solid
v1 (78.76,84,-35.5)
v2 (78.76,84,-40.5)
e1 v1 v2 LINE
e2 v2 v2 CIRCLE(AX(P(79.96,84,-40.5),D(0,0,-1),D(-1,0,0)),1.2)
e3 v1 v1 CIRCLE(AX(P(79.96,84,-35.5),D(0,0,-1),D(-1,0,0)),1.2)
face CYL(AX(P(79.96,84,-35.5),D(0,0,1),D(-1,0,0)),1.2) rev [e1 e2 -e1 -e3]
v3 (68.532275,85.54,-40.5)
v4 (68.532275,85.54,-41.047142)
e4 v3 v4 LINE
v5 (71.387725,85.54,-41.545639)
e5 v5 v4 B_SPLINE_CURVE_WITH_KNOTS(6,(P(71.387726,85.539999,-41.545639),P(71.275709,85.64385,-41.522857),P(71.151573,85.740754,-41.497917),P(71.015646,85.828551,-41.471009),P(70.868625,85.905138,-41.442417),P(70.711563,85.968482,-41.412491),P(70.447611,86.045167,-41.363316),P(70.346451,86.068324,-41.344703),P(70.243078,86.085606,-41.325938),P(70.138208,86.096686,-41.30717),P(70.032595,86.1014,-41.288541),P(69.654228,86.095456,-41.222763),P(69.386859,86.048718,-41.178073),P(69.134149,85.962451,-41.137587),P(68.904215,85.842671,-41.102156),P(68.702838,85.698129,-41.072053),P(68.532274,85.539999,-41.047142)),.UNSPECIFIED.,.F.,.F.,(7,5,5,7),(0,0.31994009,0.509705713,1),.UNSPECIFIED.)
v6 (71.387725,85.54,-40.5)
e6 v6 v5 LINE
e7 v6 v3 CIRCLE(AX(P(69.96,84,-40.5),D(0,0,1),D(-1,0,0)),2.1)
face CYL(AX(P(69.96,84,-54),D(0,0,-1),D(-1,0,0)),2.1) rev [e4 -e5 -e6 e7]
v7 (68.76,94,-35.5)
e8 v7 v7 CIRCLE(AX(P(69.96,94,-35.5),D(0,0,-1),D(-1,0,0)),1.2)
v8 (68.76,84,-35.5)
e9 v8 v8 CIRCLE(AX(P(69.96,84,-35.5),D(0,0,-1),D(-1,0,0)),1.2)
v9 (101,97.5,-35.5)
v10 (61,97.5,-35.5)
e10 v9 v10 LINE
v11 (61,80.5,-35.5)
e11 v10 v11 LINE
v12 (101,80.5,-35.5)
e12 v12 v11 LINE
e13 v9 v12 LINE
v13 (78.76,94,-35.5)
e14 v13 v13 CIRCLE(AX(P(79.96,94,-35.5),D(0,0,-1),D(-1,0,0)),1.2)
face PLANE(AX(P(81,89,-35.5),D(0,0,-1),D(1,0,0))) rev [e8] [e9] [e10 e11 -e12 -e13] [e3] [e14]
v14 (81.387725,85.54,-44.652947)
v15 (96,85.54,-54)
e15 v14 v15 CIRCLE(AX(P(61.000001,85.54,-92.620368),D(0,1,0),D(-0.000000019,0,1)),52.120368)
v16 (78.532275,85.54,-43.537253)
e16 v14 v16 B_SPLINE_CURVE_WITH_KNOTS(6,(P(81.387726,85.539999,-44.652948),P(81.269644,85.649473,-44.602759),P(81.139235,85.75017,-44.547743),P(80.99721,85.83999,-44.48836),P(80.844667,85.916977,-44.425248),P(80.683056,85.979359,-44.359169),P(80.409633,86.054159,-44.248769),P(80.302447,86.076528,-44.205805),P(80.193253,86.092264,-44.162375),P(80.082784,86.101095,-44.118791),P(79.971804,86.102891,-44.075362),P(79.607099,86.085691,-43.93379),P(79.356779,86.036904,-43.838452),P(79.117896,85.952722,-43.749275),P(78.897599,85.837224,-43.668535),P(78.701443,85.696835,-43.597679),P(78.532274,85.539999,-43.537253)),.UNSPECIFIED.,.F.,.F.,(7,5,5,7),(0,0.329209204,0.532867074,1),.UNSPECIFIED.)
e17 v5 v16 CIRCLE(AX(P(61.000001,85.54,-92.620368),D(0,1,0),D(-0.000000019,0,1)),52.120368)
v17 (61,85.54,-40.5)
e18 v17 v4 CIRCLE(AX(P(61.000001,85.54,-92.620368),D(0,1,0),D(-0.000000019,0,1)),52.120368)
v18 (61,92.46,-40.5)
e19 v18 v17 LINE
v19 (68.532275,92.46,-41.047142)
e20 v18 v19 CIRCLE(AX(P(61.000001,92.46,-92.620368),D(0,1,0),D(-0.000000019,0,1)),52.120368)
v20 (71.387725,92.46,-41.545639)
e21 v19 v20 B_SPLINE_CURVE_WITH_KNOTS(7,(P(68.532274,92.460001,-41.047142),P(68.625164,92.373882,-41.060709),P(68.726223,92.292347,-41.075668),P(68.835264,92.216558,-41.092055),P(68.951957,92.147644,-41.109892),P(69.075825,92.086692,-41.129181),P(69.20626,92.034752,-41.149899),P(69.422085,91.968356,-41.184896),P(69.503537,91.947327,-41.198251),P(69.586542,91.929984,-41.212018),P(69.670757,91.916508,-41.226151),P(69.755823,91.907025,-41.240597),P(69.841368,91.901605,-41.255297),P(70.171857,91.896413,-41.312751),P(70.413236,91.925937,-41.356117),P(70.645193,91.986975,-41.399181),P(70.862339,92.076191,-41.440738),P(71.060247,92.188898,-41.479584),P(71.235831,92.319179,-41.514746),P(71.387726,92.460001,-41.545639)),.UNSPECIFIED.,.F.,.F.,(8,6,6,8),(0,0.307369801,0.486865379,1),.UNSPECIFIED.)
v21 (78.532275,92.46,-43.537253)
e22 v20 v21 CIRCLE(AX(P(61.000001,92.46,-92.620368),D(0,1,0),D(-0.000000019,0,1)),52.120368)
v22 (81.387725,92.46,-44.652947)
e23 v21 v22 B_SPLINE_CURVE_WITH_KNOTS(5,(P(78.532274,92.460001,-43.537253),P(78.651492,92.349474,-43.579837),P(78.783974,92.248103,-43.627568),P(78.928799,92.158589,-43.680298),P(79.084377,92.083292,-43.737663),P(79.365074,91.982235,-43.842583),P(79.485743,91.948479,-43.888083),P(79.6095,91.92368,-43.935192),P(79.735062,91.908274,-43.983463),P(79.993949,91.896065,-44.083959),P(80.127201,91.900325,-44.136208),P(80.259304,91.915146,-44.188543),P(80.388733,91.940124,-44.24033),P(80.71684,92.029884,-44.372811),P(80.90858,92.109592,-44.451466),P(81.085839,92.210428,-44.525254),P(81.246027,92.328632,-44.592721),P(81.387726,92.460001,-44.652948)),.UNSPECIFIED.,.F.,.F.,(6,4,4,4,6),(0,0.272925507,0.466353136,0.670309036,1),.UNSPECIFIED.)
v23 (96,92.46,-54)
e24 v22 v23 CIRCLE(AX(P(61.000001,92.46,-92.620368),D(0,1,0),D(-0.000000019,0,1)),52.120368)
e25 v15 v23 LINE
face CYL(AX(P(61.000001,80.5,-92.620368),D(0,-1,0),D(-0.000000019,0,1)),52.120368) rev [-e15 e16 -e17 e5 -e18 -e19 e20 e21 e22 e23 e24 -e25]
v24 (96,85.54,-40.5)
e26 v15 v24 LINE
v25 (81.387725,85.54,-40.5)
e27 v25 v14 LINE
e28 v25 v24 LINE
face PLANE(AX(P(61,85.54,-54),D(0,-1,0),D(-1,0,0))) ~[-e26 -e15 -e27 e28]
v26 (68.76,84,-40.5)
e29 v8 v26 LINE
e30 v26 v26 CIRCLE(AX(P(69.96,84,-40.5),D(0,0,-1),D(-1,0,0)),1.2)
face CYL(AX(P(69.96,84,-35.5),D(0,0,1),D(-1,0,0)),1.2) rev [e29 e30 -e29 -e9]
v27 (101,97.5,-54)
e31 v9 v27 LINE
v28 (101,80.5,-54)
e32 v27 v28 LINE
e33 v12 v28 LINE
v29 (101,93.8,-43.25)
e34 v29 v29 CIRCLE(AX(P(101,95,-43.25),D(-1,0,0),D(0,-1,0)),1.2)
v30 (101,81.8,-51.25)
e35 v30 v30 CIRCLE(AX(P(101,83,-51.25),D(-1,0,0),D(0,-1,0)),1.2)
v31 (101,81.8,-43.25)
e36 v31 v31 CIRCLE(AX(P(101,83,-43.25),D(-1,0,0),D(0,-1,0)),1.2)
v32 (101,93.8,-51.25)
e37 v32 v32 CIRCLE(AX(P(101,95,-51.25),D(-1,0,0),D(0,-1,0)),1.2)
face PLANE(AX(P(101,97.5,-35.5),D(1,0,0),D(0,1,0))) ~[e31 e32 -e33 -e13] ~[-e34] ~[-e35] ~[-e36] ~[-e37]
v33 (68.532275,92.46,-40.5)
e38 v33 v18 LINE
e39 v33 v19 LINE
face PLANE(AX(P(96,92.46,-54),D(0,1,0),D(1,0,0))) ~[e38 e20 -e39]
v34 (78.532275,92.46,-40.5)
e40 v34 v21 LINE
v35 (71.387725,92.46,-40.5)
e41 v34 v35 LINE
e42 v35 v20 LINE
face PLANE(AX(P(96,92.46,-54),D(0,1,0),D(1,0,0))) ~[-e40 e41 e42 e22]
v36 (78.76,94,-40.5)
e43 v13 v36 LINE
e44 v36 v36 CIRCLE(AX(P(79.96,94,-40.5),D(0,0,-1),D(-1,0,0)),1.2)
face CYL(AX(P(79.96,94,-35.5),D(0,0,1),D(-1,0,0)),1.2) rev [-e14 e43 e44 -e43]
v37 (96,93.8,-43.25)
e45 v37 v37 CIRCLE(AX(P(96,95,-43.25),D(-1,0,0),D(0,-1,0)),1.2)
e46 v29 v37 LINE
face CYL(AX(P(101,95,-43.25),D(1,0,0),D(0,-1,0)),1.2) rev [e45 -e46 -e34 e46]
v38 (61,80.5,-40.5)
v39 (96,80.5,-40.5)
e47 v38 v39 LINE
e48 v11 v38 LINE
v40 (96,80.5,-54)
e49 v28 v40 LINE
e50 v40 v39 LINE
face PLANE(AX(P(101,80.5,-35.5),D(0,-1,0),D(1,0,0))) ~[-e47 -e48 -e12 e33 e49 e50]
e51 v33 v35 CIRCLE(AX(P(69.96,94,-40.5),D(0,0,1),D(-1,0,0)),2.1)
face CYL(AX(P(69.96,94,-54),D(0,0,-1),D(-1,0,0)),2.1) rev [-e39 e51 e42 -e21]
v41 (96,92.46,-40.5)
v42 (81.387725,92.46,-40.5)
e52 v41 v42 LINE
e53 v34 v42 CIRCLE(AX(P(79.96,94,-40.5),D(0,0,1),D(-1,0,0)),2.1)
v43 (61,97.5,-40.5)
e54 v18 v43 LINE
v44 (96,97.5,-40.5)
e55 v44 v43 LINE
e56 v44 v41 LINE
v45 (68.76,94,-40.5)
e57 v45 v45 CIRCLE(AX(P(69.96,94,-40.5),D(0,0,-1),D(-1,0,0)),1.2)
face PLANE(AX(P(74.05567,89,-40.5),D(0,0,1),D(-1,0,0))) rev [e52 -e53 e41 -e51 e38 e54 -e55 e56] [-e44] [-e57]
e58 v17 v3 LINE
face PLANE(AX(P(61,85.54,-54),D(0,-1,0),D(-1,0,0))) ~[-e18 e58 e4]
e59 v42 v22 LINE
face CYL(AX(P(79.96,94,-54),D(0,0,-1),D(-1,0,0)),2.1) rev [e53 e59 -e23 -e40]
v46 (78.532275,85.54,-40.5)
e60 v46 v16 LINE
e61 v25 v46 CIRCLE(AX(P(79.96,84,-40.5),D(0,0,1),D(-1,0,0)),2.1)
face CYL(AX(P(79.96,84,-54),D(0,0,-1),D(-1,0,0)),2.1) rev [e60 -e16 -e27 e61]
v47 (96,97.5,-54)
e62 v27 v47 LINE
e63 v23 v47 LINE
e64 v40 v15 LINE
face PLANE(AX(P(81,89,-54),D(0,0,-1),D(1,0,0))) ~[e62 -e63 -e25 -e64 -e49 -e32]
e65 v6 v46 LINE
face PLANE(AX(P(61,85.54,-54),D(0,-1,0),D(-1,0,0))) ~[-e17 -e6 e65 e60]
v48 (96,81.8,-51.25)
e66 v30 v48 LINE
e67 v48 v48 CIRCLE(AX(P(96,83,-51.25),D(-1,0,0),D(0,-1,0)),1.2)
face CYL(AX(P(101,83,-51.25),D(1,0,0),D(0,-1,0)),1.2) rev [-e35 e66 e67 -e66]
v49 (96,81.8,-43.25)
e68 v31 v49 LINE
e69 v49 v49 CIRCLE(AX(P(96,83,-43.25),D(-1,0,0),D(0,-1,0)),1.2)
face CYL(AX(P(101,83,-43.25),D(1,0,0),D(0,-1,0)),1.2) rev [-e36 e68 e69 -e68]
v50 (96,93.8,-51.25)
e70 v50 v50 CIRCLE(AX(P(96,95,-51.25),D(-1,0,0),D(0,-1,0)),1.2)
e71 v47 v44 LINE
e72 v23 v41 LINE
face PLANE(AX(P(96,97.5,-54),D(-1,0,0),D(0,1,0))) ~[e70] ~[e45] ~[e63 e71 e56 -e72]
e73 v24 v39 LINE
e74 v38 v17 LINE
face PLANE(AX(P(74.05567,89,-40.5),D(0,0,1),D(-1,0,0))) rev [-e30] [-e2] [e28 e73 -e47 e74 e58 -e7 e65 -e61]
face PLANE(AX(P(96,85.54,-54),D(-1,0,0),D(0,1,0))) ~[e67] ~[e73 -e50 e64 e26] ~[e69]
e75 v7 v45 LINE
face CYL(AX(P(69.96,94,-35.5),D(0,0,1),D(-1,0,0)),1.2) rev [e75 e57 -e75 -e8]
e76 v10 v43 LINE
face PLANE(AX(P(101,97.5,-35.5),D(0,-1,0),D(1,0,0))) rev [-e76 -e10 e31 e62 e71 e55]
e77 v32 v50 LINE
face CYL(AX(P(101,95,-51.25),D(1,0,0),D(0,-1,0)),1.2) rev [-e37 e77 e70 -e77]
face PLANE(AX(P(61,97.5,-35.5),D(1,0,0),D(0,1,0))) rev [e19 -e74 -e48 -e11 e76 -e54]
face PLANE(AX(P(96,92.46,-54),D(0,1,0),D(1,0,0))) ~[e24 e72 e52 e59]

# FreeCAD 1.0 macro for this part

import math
import FreeCAD as App
import Part
import Sketcher
Q = App.Units.Quantity

doc = App.newDocument("Part")
body = doc.addObject("PartDesign::Body", "Body")

# Sketch on XY plane
sketch1 = body.newObject("Sketcher::SketchObject", "Sketch")
sketch1.AttachmentSupport = (doc.getObject("XY_Plane"), [""])
sketch1.MapMode = "FlatFace"
sketch1.AttachmentOffset = App.Placement(App.Vector(0, 0, -10), App.Rotation())
sketch1.addGeometry([
    Part.LineSegment(App.Vector(-101, 83, 0), App.Vector(-101, 100, 0)),
    Part.LineSegment(App.Vector(-101, 100, 0), App.Vector(-61, 100, 0)),
    Part.LineSegment(App.Vector(-61, 100, 0), App.Vector(-61, 83, 0)),
    Part.LineSegment(App.Vector(-61, 83, 0), App.Vector(-101, 83, 0)),
], False)
sketch1.addConstraint([
    Sketcher.Constraint("Coincident", 0, 2, 1, 1),
    Sketcher.Constraint("Coincident", 1, 2, 2, 1),
    Sketcher.Constraint("Coincident", 2, 2, 3, 1),
    Sketcher.Constraint("Coincident", 3, 2, 0, 1),
    Sketcher.Constraint("Vertical", 0),
    Sketcher.Constraint("Horizontal", 1),
    Sketcher.Constraint("Vertical", 2),
    Sketcher.Constraint("Horizontal", 3),
    Sketcher.Constraint("DistanceX", 1, 1, 1, 2, Q("40 mm")),
    Sketcher.Constraint("DistanceY", 0, 1, 0, 2, Q("17 mm")),
    Sketcher.Constraint("DistanceX", 0, 2, -1, 1, Q("101 mm")),
    Sketcher.Constraint("DistanceY", -1, 1, 0, 2, Q("100 mm")),
])
pad1 = body.newObject("PartDesign::Pad", "Pad")
pad1.Profile = sketch1
pad1.Length = 18.5
pad1.Reversed = True

# Sketch on XZ plane
sketch2 = body.newObject("Sketcher::SketchObject", "Sketch001")
sketch2.AttachmentSupport = (doc.getObject("XZ_Plane"), [""])
sketch2.MapMode = "FlatFace"
sketch2.AttachmentOffset = App.Placement(App.Vector(0, 0, -83), App.Rotation())
sketch2.addGeometry([
    Part.ArcOfCircle(Part.Circle(App.Vector(-61, -67, 0), App.Vector(0, 0, 1), 52), math.radians(90), math.radians(132)),
    Part.LineSegment(App.Vector(-96, -28, 0), App.Vector(-61, -28, 0)),
    Part.LineSegment(App.Vector(-61, -28, 0), App.Vector(-61, -15, 0)),
], False)
sketch2.addConstraint([
    Sketcher.Constraint("Coincident", 0, 2, 1, 1),
    Sketcher.Constraint("Coincident", 1, 2, 2, 1),
    Sketcher.Constraint("Coincident", 2, 2, 0, 1),
    Sketcher.Constraint("Horizontal", 1),
    Sketcher.Constraint("Vertical", 2),
    Sketcher.Constraint("Vertical", 0, 3, 1, 2),
    Sketcher.Constraint("DistanceX", 1, 1, 1, 2, Q("35 mm")),
    Sketcher.Constraint("DistanceY", 2, 1, 2, 2, Q("13.5 mm")),
    Sketcher.Constraint("DistanceX", 0, 3, -1, 1, Q("61.000001 mm")),
    Sketcher.Constraint("DistanceY", 2, 2, -1, 1, Q("15 mm")),
])
pocket1 = body.newObject("PartDesign::Pocket", "Pocket")
pocket1.Profile = sketch2
pocket1.Length = 17

# Sketch on YZ plane
sketch3 = body.newObject("Sketcher::SketchObject", "Sketch002")
sketch3.AttachmentSupport = (doc.getObject("YZ_Plane"), [""])
sketch3.MapMode = "FlatFace"
sketch3.AttachmentOffset = App.Placement(App.Vector(0, 0, -101), App.Rotation())
sketch3.addGeometry([
    Part.Circle(App.Vector(97.5, -17.8, 0), App.Vector(0, 0, 1), 1.2),
    Part.Circle(App.Vector(85.5, -17.8, 0), App.Vector(0, 0, 1), 1.2),
    Part.Circle(App.Vector(97.5, -25.8, 0), App.Vector(0, 0, 1), 1.2),
    Part.Circle(App.Vector(85.5, -25.8, 0), App.Vector(0, 0, 1), 1.2),
], False)
sketch3.addConstraint([
    Sketcher.Constraint("Equal", 0, 1),
    Sketcher.Constraint("Equal", 1, 2),
    Sketcher.Constraint("Equal", 2, 3),
    Sketcher.Constraint("Horizontal", 0, 3, 1, 3),
    Sketcher.Constraint("Horizontal", 2, 3, 3, 3),
    Sketcher.Constraint("Vertical", 0, 3, 2, 3),
    Sketcher.Constraint("Vertical", 1, 3, 3, 3),
    Sketcher.Constraint("Diameter", 0, Q("2.4 mm")),
    Sketcher.Constraint("DistanceX", 1, 3, 0, 3, Q("12 mm")),
    Sketcher.Constraint("DistanceY", 2, 3, 0, 3, Q("8 mm")),
    Sketcher.Constraint("DistanceX", -1, 1, 0, 3, Q("97.5 mm")),
    Sketcher.Constraint("DistanceY", 0, 3, -1, 1, Q("17.75 mm")),
])
pocket2 = body.newObject("PartDesign::Pocket", "Pocket001")
pocket2.Profile = sketch3
pocket2.Length = 40
pocket2.Reversed = True

# Sketch on XY plane
sketch4 = body.newObject("Sketcher::SketchObject", "Sketch003")
sketch4.AttachmentSupport = (doc.getObject("XY_Plane"), [""])
sketch4.MapMode = "FlatFace"
sketch4.AttachmentOffset = App.Placement(App.Vector(0, 0, -28.5), App.Rotation())
sketch4.addGeometry([
    Part.LineSegment(App.Vector(-51, 83, 0), App.Vector(-96, 83, 0)),  # 0
    Part.LineSegment(App.Vector(-96, 83, 0), App.Vector(-96, 88, 0)),  # 1
    Part.LineSegment(App.Vector(-96, 88, 0), App.Vector(-61, 88, 0)),  # 2
    Part.LineSegment(App.Vector(-61, 88, 0), App.Vector(-61, 95, 0)),  # 3
    Part.LineSegment(App.Vector(-61, 95, 0), App.Vector(-96, 95, 0)),  # 4
    Part.LineSegment(App.Vector(-96, 95, 0), App.Vector(-96, 100, 0)),  # 5
    Part.LineSegment(App.Vector(-96, 100, 0), App.Vector(-51, 100, 0)),  # 6
    Part.LineSegment(App.Vector(-51, 100, 0), App.Vector(-51, 83, 0)),  # 7
], False)
sketch4.addConstraint([
    Sketcher.Constraint("Coincident", 0, 2, 1, 1),
    Sketcher.Constraint("Coincident", 1, 2, 2, 1),
    Sketcher.Constraint("Coincident", 2, 2, 3, 1),
    Sketcher.Constraint("Coincident", 3, 2, 4, 1),
    Sketcher.Constraint("Coincident", 4, 2, 5, 1),
    Sketcher.Constraint("Coincident", 5, 2, 6, 1),
    Sketcher.Constraint("Coincident", 6, 2, 7, 1),
    Sketcher.Constraint("Coincident", 7, 2, 0, 1),
    Sketcher.Constraint("Horizontal", 0),
    Sketcher.Constraint("Vertical", 1),
    Sketcher.Constraint("Horizontal", 2),
    Sketcher.Constraint("Vertical", 3),
    Sketcher.Constraint("Horizontal", 4),
    Sketcher.Constraint("Vertical", 5),
    Sketcher.Constraint("Horizontal", 6),
    Sketcher.Constraint("Vertical", 7),
    Sketcher.Constraint("Vertical", 1, 2, 4, 2),
    Sketcher.Constraint("Equal", 1, 5),
    Sketcher.Constraint("DistanceX", 0, 2, 0, 1, Q("45 mm")),
    Sketcher.Constraint("DistanceX", 2, 1, 2, 2, Q("35 mm")),
    Sketcher.Constraint("DistanceY", 7, 2, 7, 1, Q("17 mm")),
    Sketcher.Constraint("DistanceX", 0, 2, -1, 1, Q("96 mm")),
    Sketcher.Constraint("DistanceY", -1, 1, 0, 2, Q("83 mm")),
    Sketcher.Constraint("DistanceY", 1, 1, 1, 2, Q("5.04 mm")),
])
pocket3 = body.newObject("PartDesign::Pocket", "Pocket002")
pocket3.Profile = sketch4
pocket3.Length = 13.5
pocket3.Reversed = True

# Sketch on XY plane
sketch5 = body.newObject("Sketcher::SketchObject", "Sketch004")
sketch5.AttachmentSupport = (doc.getObject("XY_Plane"), [""])
sketch5.MapMode = "FlatFace"
sketch5.AttachmentOffset = App.Placement(App.Vector(0, 0, -10), App.Rotation())
sketch5.addGeometry([
    Part.Circle(App.Vector(-70, 96.5, 0), App.Vector(0, 0, 1), 1.2),
    Part.Circle(App.Vector(-70, 86.5, 0), App.Vector(0, 0, 1), 1.2),
    Part.Circle(App.Vector(-80, 96.5, 0), App.Vector(0, 0, 1), 1.2),
    Part.Circle(App.Vector(-80, 86.5, 0), App.Vector(0, 0, 1), 1.2),
], False)
sketch5.addConstraint([
    Sketcher.Constraint("Equal", 0, 1),
    Sketcher.Constraint("Equal", 1, 2),
    Sketcher.Constraint("Equal", 2, 3),
    Sketcher.Constraint("Horizontal", 0, 3, 2, 3),
    Sketcher.Constraint("Horizontal", 1, 3, 3, 3),
    Sketcher.Constraint("Vertical", 0, 3, 1, 3),
    Sketcher.Constraint("Vertical", 2, 3, 3, 3),
    Sketcher.Constraint("Diameter", 0, Q("2.4 mm")),
    Sketcher.Constraint("DistanceY", 1, 3, 0, 3, Q("10 mm")),
    Sketcher.Constraint("DistanceX", 2, 3, 0, 3, Q("10 mm")),
    Sketcher.Constraint("DistanceY", -1, 1, 0, 3, Q("96.5 mm")),
    Sketcher.Constraint("DistanceX", 0, 3, -1, 1, Q("69.96 mm")),
])
pocket4 = body.newObject("PartDesign::Pocket", "Pocket003")
pocket4.Profile = sketch5
pocket4.Length = 5

# Sketch on XY plane
sketch6 = body.newObject("Sketcher::SketchObject", "Sketch005")
sketch6.AttachmentSupport = (doc.getObject("XY_Plane"), [""])
sketch6.MapMode = "FlatFace"
sketch6.AttachmentOffset = App.Placement(App.Vector(0, 0, -28.5), App.Rotation())
sketch6.addGeometry([
    Part.Circle(App.Vector(-80, 86.5, 0), App.Vector(0, 0, 1), 2.1),
    Part.Circle(App.Vector(-70, 86.5, 0), App.Vector(0, 0, 1), 2.1),
    Part.Circle(App.Vector(-70, 96.5, 0), App.Vector(0, 0, 1), 2.1),
    Part.Circle(App.Vector(-80, 96.5, 0), App.Vector(0, 0, 1), 2.1),
], False)
sketch6.addConstraint([
    Sketcher.Constraint("Equal", 0, 1),
    Sketcher.Constraint("Equal", 1, 2),
    Sketcher.Constraint("Equal", 2, 3),
    Sketcher.Constraint("Horizontal", 0, 3, 1, 3),
    Sketcher.Constraint("Horizontal", 2, 3, 3, 3),
    Sketcher.Constraint("Vertical", 1, 3, 2, 3),
    Sketcher.Constraint("Vertical", 0, 3, 3, 3),
    Sketcher.Constraint("Diameter", 0, Q("4.2 mm")),
    Sketcher.Constraint("DistanceX", 0, 3, 1, 3, Q("10 mm")),
    Sketcher.Constraint("DistanceY", 1, 3, 2, 3, Q("10 mm")),
    Sketcher.Constraint("DistanceY", -1, 1, 0, 3, Q("86.5 mm")),
    Sketcher.Constraint("DistanceX", 0, 3, -1, 1, Q("79.96 mm")),
])
pocket5 = body.newObject("PartDesign::Pocket", "Pocket004")
pocket5.Profile = sketch6
pocket5.Length = 13.5
pocket5.Reversed = True
body2 = doc.addObject("PartDesign::Body", "Body001")
doc.recompute()

body.Placement = App.Placement(App.Vector(0, -2.5, -25.5), App.Rotation(App.Vector(0, 0, 1), 0))
boolean = body2.newObject("PartDesign::Boolean", "Boolean")
boolean.Type = "Fuse"
boolean.addObjects([body])
body3 = doc.addObject("PartDesign::Body", "Body002")
doc.recompute()

mirroring = doc.addObject("Part::Mirroring", "Mirroring")
mirroring.Source = body2
mirroring.Base = App.Vector(0, 0, 0)
mirroring.Normal = App.Vector(1, 0, 0)
body3.BaseFeature = mirroring
doc.recompute()
body2.Visibility = False
mirroring.Visibility = False

doc.recompute()
